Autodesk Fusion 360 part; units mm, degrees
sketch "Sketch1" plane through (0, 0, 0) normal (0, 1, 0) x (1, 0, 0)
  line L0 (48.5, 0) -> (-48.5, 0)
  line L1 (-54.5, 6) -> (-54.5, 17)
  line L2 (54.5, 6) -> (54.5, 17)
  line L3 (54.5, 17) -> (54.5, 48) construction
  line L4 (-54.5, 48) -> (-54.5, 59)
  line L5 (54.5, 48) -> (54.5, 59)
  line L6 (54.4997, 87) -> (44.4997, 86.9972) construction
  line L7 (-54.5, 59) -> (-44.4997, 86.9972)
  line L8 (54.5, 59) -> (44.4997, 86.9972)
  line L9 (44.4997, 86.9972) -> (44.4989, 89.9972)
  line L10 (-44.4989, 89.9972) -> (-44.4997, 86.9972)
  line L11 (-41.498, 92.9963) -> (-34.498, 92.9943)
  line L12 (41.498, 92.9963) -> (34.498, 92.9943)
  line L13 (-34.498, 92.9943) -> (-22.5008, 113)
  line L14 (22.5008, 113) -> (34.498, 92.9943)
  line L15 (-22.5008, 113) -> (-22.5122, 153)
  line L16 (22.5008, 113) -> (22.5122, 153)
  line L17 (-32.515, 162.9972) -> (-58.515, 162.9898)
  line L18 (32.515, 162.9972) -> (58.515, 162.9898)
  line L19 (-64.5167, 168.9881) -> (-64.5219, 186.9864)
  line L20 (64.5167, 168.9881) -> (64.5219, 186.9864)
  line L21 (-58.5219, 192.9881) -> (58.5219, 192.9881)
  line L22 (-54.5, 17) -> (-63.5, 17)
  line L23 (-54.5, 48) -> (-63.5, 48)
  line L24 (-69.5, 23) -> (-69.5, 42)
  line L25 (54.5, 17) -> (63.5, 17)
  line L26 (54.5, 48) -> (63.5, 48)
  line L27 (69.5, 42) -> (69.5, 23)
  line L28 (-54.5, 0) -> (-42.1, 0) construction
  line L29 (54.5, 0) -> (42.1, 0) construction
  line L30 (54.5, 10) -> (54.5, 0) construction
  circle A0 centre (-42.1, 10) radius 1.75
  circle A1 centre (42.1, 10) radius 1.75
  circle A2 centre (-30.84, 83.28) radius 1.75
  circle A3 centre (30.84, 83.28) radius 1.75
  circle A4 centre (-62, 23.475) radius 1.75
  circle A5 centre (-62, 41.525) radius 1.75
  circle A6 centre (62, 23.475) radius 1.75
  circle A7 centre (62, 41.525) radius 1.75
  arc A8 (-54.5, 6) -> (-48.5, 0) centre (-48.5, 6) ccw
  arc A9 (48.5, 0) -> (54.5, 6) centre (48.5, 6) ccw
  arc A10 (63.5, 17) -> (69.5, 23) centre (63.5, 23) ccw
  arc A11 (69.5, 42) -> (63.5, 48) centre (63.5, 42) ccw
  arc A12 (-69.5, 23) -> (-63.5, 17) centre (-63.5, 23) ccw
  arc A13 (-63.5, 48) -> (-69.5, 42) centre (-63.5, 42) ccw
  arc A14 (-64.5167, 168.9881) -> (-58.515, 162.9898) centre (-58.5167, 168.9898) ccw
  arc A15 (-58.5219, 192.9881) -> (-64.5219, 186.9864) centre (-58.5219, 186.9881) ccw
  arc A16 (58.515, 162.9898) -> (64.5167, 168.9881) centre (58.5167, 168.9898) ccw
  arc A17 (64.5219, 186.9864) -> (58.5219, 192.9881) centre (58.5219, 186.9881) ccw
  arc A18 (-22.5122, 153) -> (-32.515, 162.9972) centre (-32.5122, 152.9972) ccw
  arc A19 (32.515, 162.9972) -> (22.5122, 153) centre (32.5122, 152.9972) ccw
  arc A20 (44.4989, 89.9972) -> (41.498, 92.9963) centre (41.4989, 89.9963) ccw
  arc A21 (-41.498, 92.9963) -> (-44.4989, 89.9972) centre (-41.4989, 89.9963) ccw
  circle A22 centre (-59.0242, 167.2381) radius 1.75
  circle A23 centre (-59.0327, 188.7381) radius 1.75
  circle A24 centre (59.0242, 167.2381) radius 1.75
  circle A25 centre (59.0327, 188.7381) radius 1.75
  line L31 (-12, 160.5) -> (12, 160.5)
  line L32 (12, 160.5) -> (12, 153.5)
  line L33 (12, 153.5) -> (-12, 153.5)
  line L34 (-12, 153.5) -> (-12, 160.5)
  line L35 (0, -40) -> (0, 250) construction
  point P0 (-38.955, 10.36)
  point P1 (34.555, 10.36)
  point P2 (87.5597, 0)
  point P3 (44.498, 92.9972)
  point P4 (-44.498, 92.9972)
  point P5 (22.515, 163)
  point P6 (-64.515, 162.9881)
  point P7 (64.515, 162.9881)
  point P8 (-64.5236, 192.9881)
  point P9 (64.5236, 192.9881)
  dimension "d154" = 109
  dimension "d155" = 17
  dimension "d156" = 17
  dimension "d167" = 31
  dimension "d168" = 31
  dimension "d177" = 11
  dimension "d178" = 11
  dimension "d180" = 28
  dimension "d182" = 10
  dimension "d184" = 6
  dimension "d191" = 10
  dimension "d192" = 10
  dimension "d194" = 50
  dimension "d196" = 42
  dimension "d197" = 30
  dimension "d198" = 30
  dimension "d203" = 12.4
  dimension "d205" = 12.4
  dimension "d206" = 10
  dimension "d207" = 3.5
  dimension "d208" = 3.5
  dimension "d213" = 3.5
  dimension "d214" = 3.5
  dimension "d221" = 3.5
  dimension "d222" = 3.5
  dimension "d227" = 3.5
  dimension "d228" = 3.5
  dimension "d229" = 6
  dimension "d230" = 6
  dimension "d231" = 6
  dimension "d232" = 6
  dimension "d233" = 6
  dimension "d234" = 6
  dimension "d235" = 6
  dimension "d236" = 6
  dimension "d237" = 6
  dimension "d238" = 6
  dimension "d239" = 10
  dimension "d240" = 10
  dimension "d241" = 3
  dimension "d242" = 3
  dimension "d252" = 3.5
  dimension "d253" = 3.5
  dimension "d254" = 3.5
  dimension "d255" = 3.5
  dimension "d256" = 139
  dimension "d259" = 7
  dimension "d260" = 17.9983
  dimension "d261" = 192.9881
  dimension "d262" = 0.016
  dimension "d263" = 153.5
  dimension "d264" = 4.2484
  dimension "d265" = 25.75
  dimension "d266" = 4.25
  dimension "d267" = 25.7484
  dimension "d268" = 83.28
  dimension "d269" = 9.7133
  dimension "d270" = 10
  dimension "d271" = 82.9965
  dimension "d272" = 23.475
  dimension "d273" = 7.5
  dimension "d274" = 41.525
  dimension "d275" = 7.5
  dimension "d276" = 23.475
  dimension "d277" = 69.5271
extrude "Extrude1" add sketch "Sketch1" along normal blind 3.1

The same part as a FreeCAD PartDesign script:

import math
import FreeCAD as App
import Part
import Sketcher

V = App.Vector
Q = App.Units.Quantity

doc = App.newDocument("Part")
params = doc.addObject("Spreadsheet::Sheet", "Params")
for row, (alias, value) in enumerate([
    ("sketch1_radius", "6 mm"),
    ("sketch1_radius2", "3 mm"),
    ("sketch1_radius3", "10 mm"),
    ("sketch1_diameter", "3.5 mm"),
    ("sketch1_height", "11 mm"),
    ("pad1_length", "3.1 mm"),
], start=1):
    params.set(f"A{row}", alias)
    params.set(f"B{row}", "=" + value)
    params.setAlias(f"B{row}", alias)

body = doc.addObject("PartDesign::Body", "Body")

# Sketch on XZ plane
sketch1 = doc.addObject("Sketcher::SketchObject", "Sketch")
body.addObject(sketch1)
sketch1.AttachmentSupport = (doc.XZ_Plane, [""])
sketch1.MapMode = "FlatFace"
sketch1.addGeometry(Part.LineSegment(V(-48.5, 0, 0), V(48.5, 0, 0)), False)
sketch1.addGeometry(Part.ArcOfCircle(Part.Circle(V(48.5, -6, 0), V(0, 0, 1), 6), math.radians(0), math.radians(90)), False)
sketch1.addGeometry(Part.LineSegment(V(54.5, -6, 0), V(54.5, -17, 0)), False)
sketch1.addGeometry(Part.LineSegment(V(54.5, -17, 0), V(63.5, -17, 0)), False)
sketch1.addGeometry(Part.ArcOfCircle(Part.Circle(V(63.5, -23, 0), V(0, 0, 1), 6), math.radians(0), math.radians(90)), False)
sketch1.addGeometry(Part.LineSegment(V(69.5, -23, 0), V(69.5, -42, 0)), False)
sketch1.addGeometry(Part.ArcOfCircle(Part.Circle(V(63.5, -42, 0), V(0, 0, 1), 6), math.radians(-90), math.radians(0)), False)
sketch1.addGeometry(Part.LineSegment(V(63.5, -48, 0), V(54.5, -48, 0)), False)
sketch1.addGeometry(Part.LineSegment(V(54.5, -48, 0), V(54.5, -59, 0)), False)
sketch1.addGeometry(Part.LineSegment(V(54.5, -59, 0), V(44.5, -87, 0)), False)
sketch1.addGeometry(Part.LineSegment(V(44.5, -87, 0), V(44.5, -90, 0)), False)
sketch1.addGeometry(Part.ArcOfCircle(Part.Circle(V(41.5, -90, 0), V(0, 0, 1), 3), math.radians(-90), math.radians(0)), False)
sketch1.addGeometry(Part.LineSegment(V(41.5, -93, 0), V(34.5, -93, 0)), False)
sketch1.addGeometry(Part.LineSegment(V(34.5, -93, 0), V(22.5, -113, 0)), False)
sketch1.addGeometry(Part.LineSegment(V(22.5, -113, 0), V(22.5, -153, 0)), False)
sketch1.addGeometry(Part.ArcOfCircle(Part.Circle(V(32.5, -153, 0), V(0, 0, 1), 10), math.radians(-180), math.radians(-90)), False)
sketch1.addGeometry(Part.LineSegment(V(32.5, -163, 0), V(58.5, -163, 0)), False)
sketch1.addGeometry(Part.ArcOfCircle(Part.Circle(V(58.5, -169, 0), V(0, 0, 1), 6), math.radians(0), math.radians(90)), False)
sketch1.addGeometry(Part.LineSegment(V(64.5, -169, 0), V(64.5, -187, 0)), False)
sketch1.addGeometry(Part.ArcOfCircle(Part.Circle(V(58.5, -187, 0), V(0, 0, 1), 6), math.radians(-90), math.radians(0)), False)
sketch1.addGeometry(Part.LineSegment(V(58.5, -193, 0), V(-58.5, -193, 0)), False)
sketch1.addGeometry(Part.ArcOfCircle(Part.Circle(V(-58.5, -187, 0), V(0, 0, 1), 6), math.radians(180), math.radians(270)), False)
sketch1.addGeometry(Part.LineSegment(V(-64.5, -187, 0), V(-64.5, -169, 0)), False)
sketch1.addGeometry(Part.ArcOfCircle(Part.Circle(V(-58.5, -169, 0), V(0, 0, 1), 6), math.radians(90), math.radians(180)), False)
sketch1.addGeometry(Part.LineSegment(V(-58.5, -163, 0), V(-32.5, -163, 0)), False)
sketch1.addGeometry(Part.ArcOfCircle(Part.Circle(V(-32.5, -153, 0), V(0, 0, 1), 10), math.radians(-90), math.radians(0)), False)
sketch1.addGeometry(Part.LineSegment(V(-22.5, -153, 0), V(-22.5, -113, 0)), False)
sketch1.addGeometry(Part.LineSegment(V(-22.5, -113, 0), V(-34.5, -93, 0)), False)
sketch1.addGeometry(Part.LineSegment(V(-34.5, -93, 0), V(-41.5, -93, 0)), False)
sketch1.addGeometry(Part.ArcOfCircle(Part.Circle(V(-41.5, -90, 0), V(0, 0, 1), 3), math.radians(-180), math.radians(-90)), False)
sketch1.addGeometry(Part.LineSegment(V(-44.5, -90, 0), V(-44.5, -87, 0)), False)
sketch1.addGeometry(Part.LineSegment(V(-44.5, -87, 0), V(-54.5, -59, 0)), False)
sketch1.addGeometry(Part.LineSegment(V(-54.5, -59, 0), V(-54.5, -48, 0)), False)
sketch1.addGeometry(Part.LineSegment(V(-54.5, -48, 0), V(-63.5, -48, 0)), False)
sketch1.addGeometry(Part.ArcOfCircle(Part.Circle(V(-63.5, -42, 0), V(0, 0, 1), 6), math.radians(180), math.radians(270)), False)
sketch1.addGeometry(Part.LineSegment(V(-69.5, -42, 0), V(-69.5, -23, 0)), False)
sketch1.addGeometry(Part.ArcOfCircle(Part.Circle(V(-63.5, -23, 0), V(0, 0, 1), 6), math.radians(90), math.radians(180)), False)
sketch1.addGeometry(Part.LineSegment(V(-63.5, -17, 0), V(-54.5, -17, 0)), False)
sketch1.addGeometry(Part.LineSegment(V(-54.5, -17, 0), V(-54.5, -6, 0)), False)
sketch1.addGeometry(Part.ArcOfCircle(Part.Circle(V(-48.5, -6, 0), V(0, 0, 1), 6), math.radians(90), math.radians(180)), False)
sketch1.addGeometry(Part.Circle(V(-62, -23.5, 0), V(0, 0, 1), 1.8), False)
sketch1.addGeometry(Part.Circle(V(-42.1, -10, 0), V(0, 0, 1), 1.8), False)
sketch1.addGeometry(Part.Circle(V(-62, -41.5, 0), V(0, 0, 1), 1.8), False)
sketch1.addGeometry(Part.Circle(V(-30.8, -83.3, 0), V(0, 0, 1), 1.8), False)
sketch1.addGeometry(Part.Circle(V(42.1, -10, 0), V(0, 0, 1), 1.8), False)
sketch1.addGeometry(Part.Circle(V(62, -23.5, 0), V(0, 0, 1), 1.8), False)
sketch1.addGeometry(Part.Circle(V(62, -41.5, 0), V(0, 0, 1), 1.8), False)
sketch1.addGeometry(Part.Circle(V(30.8, -83.3, 0), V(0, 0, 1), 1.8), False)
sketch1.addGeometry(Part.Circle(V(-59, -167.2, 0), V(0, 0, 1), 1.8), False)
sketch1.addGeometry(Part.Circle(V(-59, -188.7, 0), V(0, 0, 1), 1.8), False)
sketch1.addGeometry(Part.LineSegment(V(-12, -153.5, 0), V(-12, -160.5, 0)), False)
sketch1.addGeometry(Part.LineSegment(V(-12, -160.5, 0), V(12, -160.5, 0)), False)
sketch1.addGeometry(Part.LineSegment(V(12, -160.5, 0), V(12, -153.5, 0)), False)
sketch1.addGeometry(Part.LineSegment(V(12, -153.5, 0), V(-12, -153.5, 0)), False)
sketch1.addGeometry(Part.Circle(V(59, -167.2, 0), V(0, 0, 1), 1.8), False)
sketch1.addGeometry(Part.Circle(V(59, -188.7, 0), V(0, 0, 1), 1.8), False)
sketch1.addConstraint(Sketcher.Constraint("Tangent", 0, 2, 1, 2))
sketch1.addConstraint(Sketcher.Constraint("Tangent", 1, 1, 2, 1))
sketch1.addConstraint(Sketcher.Constraint("Coincident", 2, 2, 3, 1))
sketch1.addConstraint(Sketcher.Constraint("Tangent", 3, 2, 4, 2))
sketch1.addConstraint(Sketcher.Constraint("Tangent", 4, 1, 5, 1))
sketch1.addConstraint(Sketcher.Constraint("Tangent", 5, 2, 6, 2))
sketch1.addConstraint(Sketcher.Constraint("Tangent", 6, 1, 7, 1))
sketch1.addConstraint(Sketcher.Constraint("Coincident", 7, 2, 8, 1))
sketch1.addConstraint(Sketcher.Constraint("Coincident", 8, 2, 9, 1))
sketch1.addConstraint(Sketcher.Constraint("Coincident", 9, 2, 10, 1))
sketch1.addConstraint(Sketcher.Constraint("Tangent", 10, 2, 11, 2))
sketch1.addConstraint(Sketcher.Constraint("Tangent", 11, 1, 12, 1))
sketch1.addConstraint(Sketcher.Constraint("Coincident", 12, 2, 13, 1))
sketch1.addConstraint(Sketcher.Constraint("Coincident", 13, 2, 14, 1))
sketch1.addConstraint(Sketcher.Constraint("Tangent", 14, 2, 15, 1))
sketch1.addConstraint(Sketcher.Constraint("Tangent", 15, 2, 16, 1))
sketch1.addConstraint(Sketcher.Constraint("Tangent", 16, 2, 17, 2))
sketch1.addConstraint(Sketcher.Constraint("Tangent", 17, 1, 18, 1))
sketch1.addConstraint(Sketcher.Constraint("Tangent", 18, 2, 19, 2))
sketch1.addConstraint(Sketcher.Constraint("Tangent", 19, 1, 20, 1))
sketch1.addConstraint(Sketcher.Constraint("Tangent", 20, 2, 21, 2))
sketch1.addConstraint(Sketcher.Constraint("Tangent", 21, 1, 22, 1))
sketch1.addConstraint(Sketcher.Constraint("Tangent", 22, 2, 23, 2))
sketch1.addConstraint(Sketcher.Constraint("Tangent", 23, 1, 24, 1))
sketch1.addConstraint(Sketcher.Constraint("Tangent", 24, 2, 25, 1))
sketch1.addConstraint(Sketcher.Constraint("Tangent", 25, 2, 26, 1))
sketch1.addConstraint(Sketcher.Constraint("Coincident", 26, 2, 27, 1))
sketch1.addConstraint(Sketcher.Constraint("Coincident", 27, 2, 28, 1))
sketch1.addConstraint(Sketcher.Constraint("Tangent", 28, 2, 29, 2))
sketch1.addConstraint(Sketcher.Constraint("Tangent", 29, 1, 30, 1))
sketch1.addConstraint(Sketcher.Constraint("Coincident", 30, 2, 31, 1))
sketch1.addConstraint(Sketcher.Constraint("Coincident", 31, 2, 32, 1))
sketch1.addConstraint(Sketcher.Constraint("Coincident", 32, 2, 33, 1))
sketch1.addConstraint(Sketcher.Constraint("Tangent", 33, 2, 34, 2))
sketch1.addConstraint(Sketcher.Constraint("Tangent", 34, 1, 35, 1))
sketch1.addConstraint(Sketcher.Constraint("Tangent", 35, 2, 36, 2))
sketch1.addConstraint(Sketcher.Constraint("Tangent", 36, 1, 37, 1))
sketch1.addConstraint(Sketcher.Constraint("Coincident", 37, 2, 38, 1))
sketch1.addConstraint(Sketcher.Constraint("Tangent", 38, 2, 39, 2))
sketch1.addConstraint(Sketcher.Constraint("Tangent", 39, 1, 0, 1))
sketch1.addConstraint(Sketcher.Constraint("Coincident", 50, 2, 51, 1))
sketch1.addConstraint(Sketcher.Constraint("Coincident", 51, 2, 52, 1))
sketch1.addConstraint(Sketcher.Constraint("Coincident", 52, 2, 53, 1))
sketch1.addConstraint(Sketcher.Constraint("Coincident", 53, 2, 50, 1))
sketch1.addConstraint(Sketcher.Constraint("Horizontal", 0))
sketch1.addConstraint(Sketcher.Constraint("Vertical", 2))
sketch1.addConstraint(Sketcher.Constraint("Horizontal", 3))
sketch1.addConstraint(Sketcher.Constraint("Vertical", 5))
sketch1.addConstraint(Sketcher.Constraint("Horizontal", 7))
sketch1.addConstraint(Sketcher.Constraint("Vertical", 8))
sketch1.addConstraint(Sketcher.Constraint("Horizontal", 20))
sketch1.addConstraint(Sketcher.Constraint("Vertical", 32))
sketch1.addConstraint(Sketcher.Constraint("Horizontal", 33))
sketch1.addConstraint(Sketcher.Constraint("Vertical", 35))
sketch1.addConstraint(Sketcher.Constraint("Horizontal", 37))
sketch1.addConstraint(Sketcher.Constraint("Vertical", 38))
sketch1.addConstraint(Sketcher.Constraint("Vertical", 50))
sketch1.addConstraint(Sketcher.Constraint("Horizontal", 51))
sketch1.addConstraint(Sketcher.Constraint("Vertical", 52))
sketch1.addConstraint(Sketcher.Constraint("Horizontal", 53))
sketch1.addConstraint(Sketcher.Constraint("Equal", 1, 4))
sketch1.addConstraint(Sketcher.Constraint("Equal", 4, 6))
sketch1.addConstraint(Sketcher.Constraint("Equal", 6, 17))
sketch1.addConstraint(Sketcher.Constraint("Equal", 17, 19))
sketch1.addConstraint(Sketcher.Constraint("Equal", 19, 21))
sketch1.addConstraint(Sketcher.Constraint("Equal", 21, 23))
sketch1.addConstraint(Sketcher.Constraint("Equal", 15, 25))
sketch1.addConstraint(Sketcher.Constraint("Equal", 11, 29))
sketch1.addConstraint(Sketcher.Constraint("Equal", 23, 34))
sketch1.addConstraint(Sketcher.Constraint("Equal", 34, 36))
sketch1.addConstraint(Sketcher.Constraint("Equal", 36, 39))
sketch1.addConstraint(Sketcher.Constraint("Equal", 40, 41))
sketch1.addConstraint(Sketcher.Constraint("Equal", 41, 42))
sketch1.addConstraint(Sketcher.Constraint("Equal", 42, 43))
sketch1.addConstraint(Sketcher.Constraint("Equal", 43, 44))
sketch1.addConstraint(Sketcher.Constraint("Equal", 44, 45))
sketch1.addConstraint(Sketcher.Constraint("Equal", 45, 46))
sketch1.addConstraint(Sketcher.Constraint("Equal", 46, 47))
sketch1.addConstraint(Sketcher.Constraint("Equal", 47, 48))
sketch1.addConstraint(Sketcher.Constraint("Equal", 48, 49))
sketch1.addConstraint(Sketcher.Constraint("Equal", 49, 54))
sketch1.addConstraint(Sketcher.Constraint("Equal", 54, 55))
sketch1.addConstraint(Sketcher.Constraint("Symmetric", 0, 2, 39, 1, -1, 1))
sketch1.addConstraint(Sketcher.Constraint("Symmetric", 17, 3, 23, 3, -2))
sketch1.addConstraint(Sketcher.Constraint("Symmetric", 15, 3, 25, 3, -2))
sketch1.addConstraint(Sketcher.Constraint("Symmetric", 11, 3, 29, 3, -2))
sketch1.addConstraint(Sketcher.Constraint("Symmetric", 6, 3, 34, 3, -2))
sketch1.addConstraint(Sketcher.Constraint("Symmetric", 41, 3, 44, 3, -2))
sketch1.addConstraint(Sketcher.Constraint("Symmetric", 40, 3, 45, 3, -2))
sketch1.addConstraint(Sketcher.Constraint("Symmetric", 42, 3, 46, 3, -2))
sketch1.addConstraint(Sketcher.Constraint("Symmetric", 43, 3, 47, 3, -2))
sketch1.addConstraint(Sketcher.Constraint("Symmetric", 48, 3, 54, 3, -2))
sketch1.addConstraint(Sketcher.Constraint("Symmetric", 49, 3, 55, 3, -2))
sketch1.addConstraint(Sketcher.Constraint("Symmetric", 13, 2, 26, 2, -2))
sketch1.addConstraint(Sketcher.Constraint("Symmetric", 12, 2, 27, 2, -2))
sketch1.addConstraint(Sketcher.Constraint("Symmetric", 9, 2, 30, 2, -2))
sketch1.addConstraint(Sketcher.Constraint("Symmetric", 8, 2, 31, 2, -2))
sketch1.addConstraint(Sketcher.Constraint("Perpendicular", 10, 12))
sketch1.addConstraint(Sketcher.Constraint("Perpendicular", 14, 16))
sketch1.addConstraint(Sketcher.Constraint("Perpendicular", 16, 18))
sketch1.addConstraint(Sketcher.Constraint("Perpendicular", 12, 22))
sketch1.addConstraint(Sketcher.Constraint("Perpendicular", 22, 24))
sketch1.addConstraint(Sketcher.Constraint("Horizontal", 4, 3, 36, 3))
sketch1.addConstraint(Sketcher.Constraint("Vertical", 40, 3, 42, 3))
sketch1.addConstraint(Sketcher.Constraint("Vertical", 2, 2, 7, 2))
sketch1.addConstraint(Sketcher.Constraint("Equal", 2, 8))
sketch1.addConstraint(Sketcher.Constraint("Radius", 1, Q("6 mm")))
sketch1.addConstraint(Sketcher.Constraint("Radius", 11, Q("3 mm")))
sketch1.addConstraint(Sketcher.Constraint("Radius", 15, Q("10 mm")))
sketch1.addConstraint(Sketcher.Constraint("Diameter", 40, Q("3.5 mm")))
sketch1.addConstraint(Sketcher.Constraint("DistanceY", 2, 2, 2, 1, Q("11 mm")))
sketch1.addConstraint(Sketcher.Constraint("DistanceY", 50, 2, 50, 1, Q("7 mm")))
sketch1.addConstraint(Sketcher.Constraint("Distance", 10, Q("3 mm")))
sketch1.addConstraint(Sketcher.Constraint("Distance", 12, Q("7 mm")))
sketch1.addConstraint(Sketcher.Constraint("DistanceY", 6, 3, -1, 1, Q("42 mm")))
sketch1.addConstraint(Sketcher.Constraint("DistanceY", 41, 3, -1, 1, Q("10 mm")))
sketch1.addConstraint(Sketcher.Constraint("DistanceY", 52, 2, -1, 1, Q("153.5 mm")))
sketch1.addConstraint(Sketcher.Constraint("DistanceX", 0, 1, 0, 2, Q("97 mm")))
sketch1.addConstraint(Sketcher.Constraint("DistanceX", 3, 1, 3, 2, Q("9 mm")))
sketch1.addConstraint(Sketcher.Constraint("DistanceX", 51, 1, 51, 2, Q("24 mm")))
sketch1.addConstraint(Sketcher.Constraint("DistanceY", 43, 3, -1, 1, Q("83.28 mm")))
sketch1.addConstraint(Sketcher.Constraint("Distance", 14, Q("40 mm")))
sketch1.addConstraint(Sketcher.Constraint("Distance", 16, Q("26 mm")))
sketch1.addConstraint(Sketcher.Constraint("DistanceX", 40, 3, -1, 1, Q("62 mm")))
sketch1.addConstraint(Sketcher.Constraint("DistanceY", 40, 3, -1, 1, Q("23.475 mm")))
sketch1.addConstraint(Sketcher.Constraint("DistanceY", 42, 3, -1, 1, Q("41.525 mm")))
sketch1.addConstraint(Sketcher.Constraint("DistanceY", 19, 1, -1, 1, Q("192.988 mm")))
sketch1.addConstraint(Sketcher.Constraint("DistanceY", 13, 2, -1, 1, Q("113 mm")))
sketch1.addConstraint(Sketcher.Constraint("DistanceX", 50, 2, -1, 1, Q("12 mm")))
sketch1.addConstraint(Sketcher.Constraint("Distance", 18, Q("17.9983 mm")))
sketch1.addConstraint(Sketcher.Constraint("DistanceX", 41, 3, -1, 1, Q("42.1 mm")))
sketch1.addConstraint(Sketcher.Constraint("Angle", 13, Q("-120.9507 deg")))
sketch1.addConstraint(Sketcher.Constraint("DistanceX", 43, 3, -1, 1, Q("30.84 mm")))
sketch1.addConstraint(Sketcher.Constraint("DistanceX", 20, 2, 20, 1, Q("117.0438 mm")))
sketch1.addConstraint(Sketcher.Constraint("DistanceX", -1, 1, 11, 3, Q("41.499 mm")))
sketch1.addConstraint(Sketcher.Constraint("DistanceY", 48, 3, -1, 1, Q("167.238 mm")))
sketch1.addConstraint(Sketcher.Constraint("DistanceY", 49, 3, -1, 1, Q("188.738 mm")))
sketch1.addConstraint(Sketcher.Constraint("DistanceX", 48, 3, -1, 1, Q("59.0242 mm")))
sketch1.addConstraint(Sketcher.Constraint("DistanceX", 49, 3, -1, 1, Q("59.0327 mm")))
sketch1.setExpression("Constraints[106]", "Params.sketch1_radius")
sketch1.setExpression("Constraints[107]", "Params.sketch1_radius2")
sketch1.setExpression("Constraints[108]", "Params.sketch1_radius3")
sketch1.setExpression("Constraints[109]", "Params.sketch1_diameter")
sketch1.setExpression("Constraints[110]", "Params.sketch1_height")
pad1 = doc.addObject("PartDesign::Pad", "Pad")
body.addObject(pad1)
pad1.Profile = sketch1
pad1.setExpression("Length", "Params.pad1_length")
pad1.Reversed = True

doc.recompute()
